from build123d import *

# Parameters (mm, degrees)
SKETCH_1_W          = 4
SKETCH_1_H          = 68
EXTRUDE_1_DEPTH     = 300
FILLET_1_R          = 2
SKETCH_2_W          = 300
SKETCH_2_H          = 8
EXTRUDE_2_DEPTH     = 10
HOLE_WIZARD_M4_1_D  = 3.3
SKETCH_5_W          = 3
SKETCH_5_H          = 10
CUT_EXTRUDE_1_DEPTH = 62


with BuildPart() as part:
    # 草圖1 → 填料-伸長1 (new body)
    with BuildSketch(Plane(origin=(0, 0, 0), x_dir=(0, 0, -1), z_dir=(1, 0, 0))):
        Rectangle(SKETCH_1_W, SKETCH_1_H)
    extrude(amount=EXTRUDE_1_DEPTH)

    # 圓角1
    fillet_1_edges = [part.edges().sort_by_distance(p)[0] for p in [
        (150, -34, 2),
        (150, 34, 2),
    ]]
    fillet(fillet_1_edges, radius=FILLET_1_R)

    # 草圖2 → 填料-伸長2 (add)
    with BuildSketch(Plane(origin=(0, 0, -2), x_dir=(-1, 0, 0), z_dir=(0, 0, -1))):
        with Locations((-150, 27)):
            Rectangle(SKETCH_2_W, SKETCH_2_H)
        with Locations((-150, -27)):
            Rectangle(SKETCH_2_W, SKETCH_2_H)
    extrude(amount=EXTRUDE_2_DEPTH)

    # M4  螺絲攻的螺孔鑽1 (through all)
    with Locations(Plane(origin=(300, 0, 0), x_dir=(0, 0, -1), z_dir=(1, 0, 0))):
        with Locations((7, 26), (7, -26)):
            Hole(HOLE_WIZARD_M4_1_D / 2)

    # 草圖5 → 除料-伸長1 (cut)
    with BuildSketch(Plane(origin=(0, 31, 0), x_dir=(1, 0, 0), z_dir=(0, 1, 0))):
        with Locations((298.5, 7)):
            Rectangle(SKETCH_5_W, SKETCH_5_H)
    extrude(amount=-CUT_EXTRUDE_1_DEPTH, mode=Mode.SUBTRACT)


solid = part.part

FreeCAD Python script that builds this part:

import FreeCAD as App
import Part
import Sketcher
from FreeCAD import Vector
Q = App.Units.Quantity


def edges_at(feature, points):
    """Names of the edges that pass closest to the given points."""
    edges = feature.Shape.Edges
    near = lambda p: min(range(len(edges)), key=lambda i: edges[i].distToShape(Part.Vertex(*p))[0])
    return sorted({f"Edge{near(p) + 1}" for p in points})


def add_polygon(sketch, points):
    """Adds a closed chain of lines whose ends are joined by coincident constraints."""
    first, n = sketch.GeometryCount, len(points)
    for a, b in zip(points, points[1:] + points[:1]):
        sketch.addGeometry(Part.LineSegment(App.Vector(*a, 0), App.Vector(*b, 0)), False)
    for i in range(n):
        sketch.addConstraint(Sketcher.Constraint("Coincident", first + i, 2, first + (i + 1) % n, 1))

doc = App.newDocument("Part")
params = doc.addObject("Spreadsheet::Sheet", "Params")
for row, (alias, value) in enumerate([
    ("sketch1_width", "68 mm"),
    ("sketch1_height", "4 mm"),
    ("pad1_length", "300 mm"),
    ("fillet_radius", "2 mm"),
    ("sketch2_width", "300 mm"),
    ("sketch2_height", "8 mm"),
    ("pad2_length", "10 mm"),
    ("sketch3_diameter", "3.3 mm"),
    ("hole_diameter", "3.3 mm"),
    ("sketch4_width", "3 mm"),
    ("sketch4_height", "10 mm"),
    ("pocket1_length", "62 mm"),
], start=1):
    params.set(f"A{row}", alias)
    params.set(f"B{row}", "=" + value)
    params.setAlias(f"B{row}", alias)

body = doc.addObject("PartDesign::Body", "Body")

# Sketch on YZ plane
sketch1 = body.newObject("Sketcher::SketchObject", "Sketch")
sketch1.AttachmentSupport = (doc.getObject("YZ_Plane"), [""])
sketch1.MapMode = "FlatFace"
add_polygon(sketch1, [(34, 2), (-34, 2), (-34, -2), (34, -2)])  # lines 0-3
sketch1.addConstraint([
    Sketcher.Constraint("Horizontal", 0),
    Sketcher.Constraint("Vertical", 1),
    Sketcher.Constraint("Horizontal", 2),
    Sketcher.Constraint("Vertical", 3),
    Sketcher.Constraint("Symmetric", 0, 2, 2, 2, -1, 1),
    Sketcher.Constraint("DistanceX", 0, 2, 0, 1, Q("68 mm")),
    Sketcher.Constraint("DistanceY", 1, 2, 1, 1, Q("4 mm")),
])
sketch1.setExpression("Constraints[9]", "Params.sketch1_width")
sketch1.setExpression("Constraints[10]", "Params.sketch1_height")
pad1 = body.newObject("PartDesign::Pad", "Pad")
pad1.Profile = sketch1
pad1.setExpression("Length", "Params.pad1_length")
doc.recompute()

fillet = body.newObject("PartDesign::Fillet", "Fillet")
fillet.Base = (pad1, edges_at(pad1, [(150, -34, 2), (150, 34, 2)]))
fillet.setExpression("Radius", "Params.fillet_radius")

# Sketch on XY plane
sketch2 = body.newObject("Sketcher::SketchObject", "Sketch001")
sketch2.AttachmentSupport = (doc.getObject("XY_Plane"), [""])
sketch2.MapMode = "FlatFace"
sketch2.AttachmentOffset = App.Placement(Vector(0, 0, -2), App.Rotation())
add_polygon(sketch2, [(300, 31), (300, 23), (0, 23), (0, 31)])  # lines 0-3
add_polygon(sketch2, [(300, -23), (300, -31), (0, -31), (0, -23)])  # lines 4-7
sketch2.addConstraint([
    Sketcher.Constraint("Vertical", 0),
    Sketcher.Constraint("Horizontal", 1),
    Sketcher.Constraint("Vertical", 2),
    Sketcher.Constraint("Horizontal", 3),
    Sketcher.Constraint("Vertical", 4),
    Sketcher.Constraint("Horizontal", 5),
    Sketcher.Constraint("Vertical", 6),
    Sketcher.Constraint("Horizontal", 7),
    Sketcher.Constraint("Symmetric", 2, 2, 5, 2, -1, 1),
    Sketcher.Constraint("Symmetric", 1, 2, 6, 2, -1),
    Sketcher.Constraint("Vertical", 3, 2, 4, 2),
    Sketcher.Constraint("DistanceX", 1, 2, 1, 1, Q("300 mm")),
    Sketcher.Constraint("DistanceY", 0, 2, 0, 1, Q("8 mm")),
    Sketcher.Constraint("DistanceY", -1, 1, 0, 2, Q("23 mm")),
])
sketch2.setExpression("Constraints[19]", "Params.sketch2_width")
sketch2.setExpression("Constraints[20]", "Params.sketch2_height")
pad2 = body.newObject("PartDesign::Pad", "Pad001")
pad2.Profile = sketch2
pad2.setExpression("Length", "Params.pad2_length")
pad2.Reversed = True

# Sketch on YZ plane
sketch3 = body.newObject("Sketcher::SketchObject", "Sketch002")
sketch3.AttachmentSupport = (doc.getObject("YZ_Plane"), [""])
sketch3.MapMode = "FlatFace"
sketch3.AttachmentOffset = App.Placement(Vector(0, 0, 300), App.Rotation())
sketch3.addGeometry([
    Part.Circle(Vector(26, -7, 0), Vector(0, 0, 1), 1.65),
    Part.Circle(Vector(-26, -7, 0), Vector(0, 0, 1), 1.65),
], False)
sketch3.addConstraint([
    Sketcher.Constraint("Equal", 0, 1),
    Sketcher.Constraint("Symmetric", 0, 3, 1, 3, -2),
    Sketcher.Constraint("Diameter", 0, Q("3.3 mm")),
    Sketcher.Constraint("DistanceX", -1, 1, 0, 3, Q("26 mm")),
    Sketcher.Constraint("DistanceY", 0, 3, -1, 1, Q("7 mm")),
])
sketch3.setExpression("Constraints[2]", "Params.sketch3_diameter")
doc.recompute()
hole = body.newObject("PartDesign::Hole", "Hole")
hole.Profile = sketch3
hole.ThreadType = "None"
hole.setExpression("Diameter", "Params.hole_diameter")
hole.DepthType = "ThroughAll"

# Sketch on XZ plane
sketch4 = body.newObject("Sketcher::SketchObject", "Sketch003")
sketch4.AttachmentSupport = (doc.getObject("XZ_Plane"), [""])
sketch4.MapMode = "FlatFace"
sketch4.AttachmentOffset = App.Placement(Vector(0, 0, -31), App.Rotation())
add_polygon(sketch4, [(297, -12), (297, -2), (300, -2), (300, -12)])  # lines 0-3
sketch4.addConstraint([
    Sketcher.Constraint("Vertical", 0),
    Sketcher.Constraint("Horizontal", 1),
    Sketcher.Constraint("Vertical", 2),
    Sketcher.Constraint("Horizontal", 3),
    Sketcher.Constraint("DistanceX", 1, 1, 1, 2, Q("3 mm")),
    Sketcher.Constraint("DistanceY", 0, 1, 0, 2, Q("10 mm")),
    Sketcher.Constraint("DistanceX", -1, 1, 0, 2, Q("297 mm")),
    Sketcher.Constraint("DistanceY", 0, 2, -1, 1, Q("2 mm")),
])
sketch4.setExpression("Constraints[8]", "Params.sketch4_width")
sketch4.setExpression("Constraints[9]", "Params.sketch4_height")
pocket1 = body.newObject("PartDesign::Pocket", "Pocket")
pocket1.Profile = sketch4
pocket1.setExpression("Length", "Params.pocket1_length")
pocket1.Reversed = True

doc.recompute()
